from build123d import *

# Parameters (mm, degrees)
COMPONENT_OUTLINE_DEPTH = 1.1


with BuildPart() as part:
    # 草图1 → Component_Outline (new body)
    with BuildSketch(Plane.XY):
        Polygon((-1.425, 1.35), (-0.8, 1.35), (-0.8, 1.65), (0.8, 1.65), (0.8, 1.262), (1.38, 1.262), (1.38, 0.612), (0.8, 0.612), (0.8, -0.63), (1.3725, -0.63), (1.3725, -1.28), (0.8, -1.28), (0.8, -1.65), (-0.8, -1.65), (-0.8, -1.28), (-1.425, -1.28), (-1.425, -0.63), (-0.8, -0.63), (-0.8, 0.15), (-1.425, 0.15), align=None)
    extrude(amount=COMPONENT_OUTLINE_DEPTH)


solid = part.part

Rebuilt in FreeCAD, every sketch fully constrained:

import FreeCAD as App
import Part
import Sketcher
from FreeCAD import Vector

doc = App.newDocument("Part")
body = doc.addObject("PartDesign::Body", "Body")

sketch1 = body.newObject("Sketcher::SketchObject", "Sketch")
sketch1.AttachmentSupport = (doc.getObject("XY_Plane"), [""])
sketch1.MapMode = "FlatFace"
sketch1.addGeometry(Part.LineSegment(Vector(-0.8, 1.35, 0), Vector(-1.425, 1.35, 0)), False)
sketch1.addGeometry(Part.LineSegment(Vector(-1.425, 1.35, 0), Vector(-1.425, 0.15, 0)), False)
sketch1.addGeometry(Part.LineSegment(Vector(-1.425, 0.15, 0), Vector(-0.8, 0.15, 0)), False)
sketch1.addGeometry(Part.LineSegment(Vector(-0.8, 0.15, 0), Vector(-0.8, -0.63, 0)), False)
sketch1.addGeometry(Part.LineSegment(Vector(-0.8, -0.63, 0), Vector(-1.425, -0.63, 0)), False)
sketch1.addGeometry(Part.LineSegment(Vector(-1.425, -0.63, 0), Vector(-1.425, -1.28, 0)), False)
sketch1.addGeometry(Part.LineSegment(Vector(-1.425, -1.28, 0), Vector(-0.8, -1.28, 0)), False)
sketch1.addGeometry(Part.LineSegment(Vector(-0.8, -1.28, 0), Vector(-0.8, -1.65, 0)), False)
sketch1.addGeometry(Part.LineSegment(Vector(-0.8, -1.65, 0), Vector(0.8, -1.65, 0)), False)
sketch1.addGeometry(Part.LineSegment(Vector(0.8, -1.65, 0), Vector(0.8, -1.28, 0)), False)
sketch1.addGeometry(Part.LineSegment(Vector(0.8, -1.28, 0), Vector(1.3725, -1.28, 0)), False)
sketch1.addGeometry(Part.LineSegment(Vector(1.3725, -1.28, 0), Vector(1.3725, -0.63, 0)), False)
sketch1.addGeometry(Part.LineSegment(Vector(1.3725, -0.63, 0), Vector(0.8, -0.63, 0)), False)
sketch1.addGeometry(Part.LineSegment(Vector(0.8, -0.63, 0), Vector(0.8, 0.612, 0)), False)
sketch1.addGeometry(Part.LineSegment(Vector(0.8, 0.612, 0), Vector(1.38, 0.612, 0)), False)
sketch1.addGeometry(Part.LineSegment(Vector(1.38, 0.612, 0), Vector(1.38, 1.262, 0)), False)
sketch1.addGeometry(Part.LineSegment(Vector(1.38, 1.262, 0), Vector(0.8, 1.262, 0)), False)
sketch1.addGeometry(Part.LineSegment(Vector(0.8, 1.262, 0), Vector(0.8, 1.65, 0)), False)
sketch1.addGeometry(Part.LineSegment(Vector(0.8, 1.65, 0), Vector(-0.8, 1.65, 0)), False)
sketch1.addGeometry(Part.LineSegment(Vector(-0.8, 1.65, 0), Vector(-0.8, 1.35, 0)), False)
sketch1.addConstraint(Sketcher.Constraint("Coincident", 0, 2, 1, 1))
sketch1.addConstraint(Sketcher.Constraint("Coincident", 1, 2, 2, 1))
sketch1.addConstraint(Sketcher.Constraint("Coincident", 2, 2, 3, 1))
sketch1.addConstraint(Sketcher.Constraint("Coincident", 3, 2, 4, 1))
sketch1.addConstraint(Sketcher.Constraint("Coincident", 4, 2, 5, 1))
sketch1.addConstraint(Sketcher.Constraint("Coincident", 5, 2, 6, 1))
sketch1.addConstraint(Sketcher.Constraint("Coincident", 6, 2, 7, 1))
sketch1.addConstraint(Sketcher.Constraint("Coincident", 7, 2, 8, 1))
sketch1.addConstraint(Sketcher.Constraint("Coincident", 8, 2, 9, 1))
sketch1.addConstraint(Sketcher.Constraint("Coincident", 9, 2, 10, 1))
sketch1.addConstraint(Sketcher.Constraint("Coincident", 10, 2, 11, 1))
sketch1.addConstraint(Sketcher.Constraint("Coincident", 11, 2, 12, 1))
sketch1.addConstraint(Sketcher.Constraint("Coincident", 12, 2, 13, 1))
sketch1.addConstraint(Sketcher.Constraint("Coincident", 13, 2, 14, 1))
sketch1.addConstraint(Sketcher.Constraint("Coincident", 14, 2, 15, 1))
sketch1.addConstraint(Sketcher.Constraint("Coincident", 15, 2, 16, 1))
sketch1.addConstraint(Sketcher.Constraint("Coincident", 16, 2, 17, 1))
sketch1.addConstraint(Sketcher.Constraint("Coincident", 17, 2, 18, 1))
sketch1.addConstraint(Sketcher.Constraint("Coincident", 18, 2, 19, 1))
sketch1.addConstraint(Sketcher.Constraint("Coincident", 19, 2, 0, 1))
sketch1.addConstraint(Sketcher.Constraint("Horizontal", 0))
sketch1.addConstraint(Sketcher.Constraint("Vertical", 1))
sketch1.addConstraint(Sketcher.Constraint("Horizontal", 2))
sketch1.addConstraint(Sketcher.Constraint("Vertical", 3))
sketch1.addConstraint(Sketcher.Constraint("Horizontal", 4))
sketch1.addConstraint(Sketcher.Constraint("Vertical", 5))
sketch1.addConstraint(Sketcher.Constraint("Horizontal", 6))
sketch1.addConstraint(Sketcher.Constraint("Vertical", 7))
sketch1.addConstraint(Sketcher.Constraint("Horizontal", 8))
sketch1.addConstraint(Sketcher.Constraint("Vertical", 9))
sketch1.addConstraint(Sketcher.Constraint("Horizontal", 10))
sketch1.addConstraint(Sketcher.Constraint("Vertical", 11))
sketch1.addConstraint(Sketcher.Constraint("Horizontal", 12))
sketch1.addConstraint(Sketcher.Constraint("Vertical", 13))
sketch1.addConstraint(Sketcher.Constraint("Horizontal", 14))
sketch1.addConstraint(Sketcher.Constraint("Vertical", 15))
sketch1.addConstraint(Sketcher.Constraint("Horizontal", 16))
sketch1.addConstraint(Sketcher.Constraint("Vertical", 17))
sketch1.addConstraint(Sketcher.Constraint("Horizontal", 18))
sketch1.addConstraint(Sketcher.Constraint("Vertical", 19))
sketch1.addConstraint(Sketcher.Constraint("Symmetric", 7, 2, 17, 2, -1, 1))
sketch1.addConstraint(Sketcher.Constraint("Symmetric", 6, 2, 9, 2, -2))
sketch1.addConstraint(Sketcher.Constraint("Symmetric", 3, 2, 12, 2, -2))
sketch1.addConstraint(Sketcher.Constraint("Vertical", 1, 2, 4, 2))
sketch1.addConstraint(Sketcher.Constraint("Vertical", 3, 2, 6, 2))
sketch1.addConstraint(Sketcher.Constraint("Vertical", 7, 2, 18, 2))
sketch1.addConstraint(Sketcher.Constraint("Equal", 11, 15))
sketch1.addConstraint(Sketcher.Constraint("DistanceX", 8, 1, 8, 2, 1.6))
sketch1.addConstraint(Sketcher.Constraint("DistanceY", 1, 2, 1, 1, 1.2))
sketch1.addConstraint(Sketcher.Constraint("DistanceY", 19, 2, 19, 1, 0.3))
sketch1.addConstraint(Sketcher.Constraint("DistanceX", 14, 1, 14, 2, 0.58))
sketch1.addConstraint(Sketcher.Constraint("DistanceY", 3, 2, 3, 1, 0.78))
sketch1.addConstraint(Sketcher.Constraint("DistanceY", 5, 2, 5, 1, 0.65))
sketch1.addConstraint(Sketcher.Constraint("DistanceY", 7, 2, 7, 1, 0.37))
sketch1.addConstraint(Sketcher.Constraint("DistanceX", 0, 2, 0, 1, 0.625))
sketch1.addConstraint(Sketcher.Constraint("DistanceY", 13, 1, 13, 2, 1.242))
sketch1.addConstraint(Sketcher.Constraint("DistanceX", 10, 1, 10, 2, 0.5725))
pad1 = body.newObject("PartDesign::Pad", "Pad")
pad1.Profile = sketch1
pad1.Length = 1.1

doc.recompute()
